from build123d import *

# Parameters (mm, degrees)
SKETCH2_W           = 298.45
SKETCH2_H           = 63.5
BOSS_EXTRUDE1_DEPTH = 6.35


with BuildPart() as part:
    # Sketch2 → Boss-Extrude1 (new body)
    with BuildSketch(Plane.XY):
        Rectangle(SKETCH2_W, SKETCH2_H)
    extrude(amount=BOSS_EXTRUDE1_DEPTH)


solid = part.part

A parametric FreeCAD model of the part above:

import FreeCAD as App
import Part
import Sketcher
from FreeCAD import Vector
Q = App.Units.Quantity

doc = App.newDocument("Part")
body = doc.addObject("PartDesign::Body", "Body")

# Sketch on XY plane
sketch1 = body.newObject("Sketcher::SketchObject", "Sketch")
sketch1.AttachmentSupport = (doc.getObject("XY_Plane"), [""])
sketch1.MapMode = "FlatFace"
sketch1.addGeometry([
    Part.LineSegment(Vector(-149, 32, 0), Vector(-149, -32, 0)),
    Part.LineSegment(Vector(-149, -32, 0), Vector(149, -32, 0)),
    Part.LineSegment(Vector(149, -32, 0), Vector(149, 32, 0)),
    Part.LineSegment(Vector(149, 32, 0), Vector(-149, 32, 0)),
], False)
sketch1.addConstraint([
    Sketcher.Constraint("Coincident", 0, 2, 1, 1),
    Sketcher.Constraint("Coincident", 1, 2, 2, 1),
    Sketcher.Constraint("Coincident", 2, 2, 3, 1),
    Sketcher.Constraint("Coincident", 3, 2, 0, 1),
    Sketcher.Constraint("Vertical", 0),
    Sketcher.Constraint("Horizontal", 1),
    Sketcher.Constraint("Vertical", 2),
    Sketcher.Constraint("Horizontal", 3),
    Sketcher.Constraint("Symmetric", 0, 2, 2, 2, -1, 1),
    Sketcher.Constraint("DistanceY", 0, 2, 0, 1, Q("2.5 in")),
    Sketcher.Constraint("DistanceX", 1, 1, 1, 2, Q("11.75 in")),
])
pad1 = body.newObject("PartDesign::Pad", "Pad")
pad1.Profile = sketch1
pad1.Length = Q("0.25 in")

doc.recompute()
